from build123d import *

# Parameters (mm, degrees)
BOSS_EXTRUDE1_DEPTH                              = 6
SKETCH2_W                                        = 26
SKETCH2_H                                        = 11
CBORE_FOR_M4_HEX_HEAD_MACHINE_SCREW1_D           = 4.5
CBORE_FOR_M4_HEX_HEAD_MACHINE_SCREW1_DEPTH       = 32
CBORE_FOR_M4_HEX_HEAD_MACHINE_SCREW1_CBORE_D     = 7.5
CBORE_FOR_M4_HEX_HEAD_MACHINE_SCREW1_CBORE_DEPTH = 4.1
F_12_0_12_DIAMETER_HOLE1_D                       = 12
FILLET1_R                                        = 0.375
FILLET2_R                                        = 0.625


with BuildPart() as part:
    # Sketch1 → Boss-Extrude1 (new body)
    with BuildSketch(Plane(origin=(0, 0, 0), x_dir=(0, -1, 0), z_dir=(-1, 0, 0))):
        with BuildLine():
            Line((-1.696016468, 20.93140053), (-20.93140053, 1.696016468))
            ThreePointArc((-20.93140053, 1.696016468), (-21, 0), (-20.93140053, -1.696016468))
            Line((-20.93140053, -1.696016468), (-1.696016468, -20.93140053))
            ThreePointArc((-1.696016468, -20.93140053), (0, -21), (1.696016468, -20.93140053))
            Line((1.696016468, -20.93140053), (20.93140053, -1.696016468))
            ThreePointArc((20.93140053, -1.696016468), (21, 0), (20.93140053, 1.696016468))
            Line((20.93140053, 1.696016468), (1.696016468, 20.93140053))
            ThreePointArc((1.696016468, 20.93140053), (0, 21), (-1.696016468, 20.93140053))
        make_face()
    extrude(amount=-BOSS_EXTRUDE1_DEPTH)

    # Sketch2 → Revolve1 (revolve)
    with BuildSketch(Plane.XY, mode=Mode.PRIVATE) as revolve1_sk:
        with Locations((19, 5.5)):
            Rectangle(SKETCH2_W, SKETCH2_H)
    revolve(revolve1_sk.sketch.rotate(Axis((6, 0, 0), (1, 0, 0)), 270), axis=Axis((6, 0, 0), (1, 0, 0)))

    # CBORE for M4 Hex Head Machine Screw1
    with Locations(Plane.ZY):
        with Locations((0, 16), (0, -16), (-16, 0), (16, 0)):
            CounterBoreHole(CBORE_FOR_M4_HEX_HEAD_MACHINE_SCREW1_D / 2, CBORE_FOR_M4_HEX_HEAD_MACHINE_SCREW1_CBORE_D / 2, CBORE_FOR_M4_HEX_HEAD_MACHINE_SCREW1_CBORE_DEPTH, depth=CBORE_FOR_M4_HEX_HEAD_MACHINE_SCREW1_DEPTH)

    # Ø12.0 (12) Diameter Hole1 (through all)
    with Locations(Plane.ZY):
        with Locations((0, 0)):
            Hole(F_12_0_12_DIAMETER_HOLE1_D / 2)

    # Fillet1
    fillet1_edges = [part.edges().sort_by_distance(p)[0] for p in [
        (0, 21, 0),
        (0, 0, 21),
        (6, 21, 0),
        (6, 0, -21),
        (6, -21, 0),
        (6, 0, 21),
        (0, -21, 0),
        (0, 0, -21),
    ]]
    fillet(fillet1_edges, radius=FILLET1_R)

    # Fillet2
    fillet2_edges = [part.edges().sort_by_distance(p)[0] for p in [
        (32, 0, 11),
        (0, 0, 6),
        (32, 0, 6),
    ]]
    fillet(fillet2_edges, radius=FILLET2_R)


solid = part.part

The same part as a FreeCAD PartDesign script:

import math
import FreeCAD as App
import Part
import Sketcher
from FreeCAD import Vector
Q = App.Units.Quantity


def edges_at(feature, points):
    """Names of the edges that pass closest to the given points."""
    edges = feature.Shape.Edges
    near = lambda p: min(range(len(edges)), key=lambda i: edges[i].distToShape(Part.Vertex(*p))[0])
    return sorted({f"Edge{near(p) + 1}" for p in points})

doc = App.newDocument("Part")
body = doc.addObject("PartDesign::Body", "Body")

# Sketch on YZ plane
sketch1 = body.newObject("Sketcher::SketchObject", "Sketch")
sketch1.AttachmentSupport = (doc.getObject("YZ_Plane"), [""])
sketch1.MapMode = "FlatFace"
sketch1.addGeometry([
    Part.LineSegment(Vector(1.7, 20.9, 0), Vector(20.9, 1.7, 0)),  # 0
    Part.ArcOfCircle(Part.Circle(Vector(0, 0, 0), Vector(0, 0, 1), 21), math.radians(-4.63), math.radians(4.63)),  # 1
    Part.LineSegment(Vector(20.9, -1.7, 0), Vector(1.7, -20.9, 0)),  # 2
    Part.ArcOfCircle(Part.Circle(Vector(0, 0, 0), Vector(0, 0, 1), 21), math.radians(-94.63), math.radians(-85.37)),  # 3
    Part.LineSegment(Vector(-1.7, -20.9, 0), Vector(-20.9, -1.7, 0)),  # 4
    Part.ArcOfCircle(Part.Circle(Vector(0, 0, 0), Vector(0, 0, 1), 21), math.radians(175.37), math.radians(184.63)),  # 5
    Part.LineSegment(Vector(-20.9, 1.7, 0), Vector(-1.7, 20.9, 0)),  # 6
    Part.ArcOfCircle(Part.Circle(Vector(0, 0, 0), Vector(0, 0, 1), 21), math.radians(85.37), math.radians(94.63)),  # 7
], False)
sketch1.addConstraint([
    Sketcher.Constraint("Coincident", 0, 2, 1, 2),
    Sketcher.Constraint("Coincident", 1, 1, 2, 1),
    Sketcher.Constraint("Coincident", 2, 2, 3, 2),
    Sketcher.Constraint("Coincident", 3, 1, 4, 1),
    Sketcher.Constraint("Coincident", 4, 2, 5, 2),
    Sketcher.Constraint("Coincident", 5, 1, 6, 1),
    Sketcher.Constraint("Coincident", 6, 2, 7, 2),
    Sketcher.Constraint("Coincident", 7, 1, 0, 1),
    Sketcher.Constraint("Coincident", 1, 3, -1, 1),
    Sketcher.Constraint("Coincident", 3, 3, -1, 1),
    Sketcher.Constraint("Coincident", 5, 3, -1, 1),
    Sketcher.Constraint("Coincident", 7, 3, -1, 1),
    Sketcher.Constraint("Equal", 1, 3),
    Sketcher.Constraint("Equal", 3, 5),
    Sketcher.Constraint("Equal", 5, 7),
    Sketcher.Constraint("Perpendicular", 0, 2),
    Sketcher.Constraint("Perpendicular", 2, 4),
    Sketcher.Constraint("Perpendicular", 4, 6),
    Sketcher.Constraint("Horizontal", 2, 2, 3, 1),
    Sketcher.Constraint("Horizontal", 1, 1, 4, 2),
    Sketcher.Constraint("Horizontal", 0, 2, 5, 1),
    Sketcher.Constraint("Vertical", 0, 2, 1, 1),
    Sketcher.Constraint("Radius", 1, Q("21 mm")),
    Sketcher.Constraint("DistanceX", -1, 1, 0, 2, Q("20.931401 mm")),
])
pad1 = body.newObject("PartDesign::Pad", "Pad")
pad1.Profile = sketch1
pad1.Length = 6

# Sketch on XY plane
sketch2 = body.newObject("Sketcher::SketchObject", "Sketch001")
sketch2.AttachmentSupport = (doc.getObject("XY_Plane"), [""])
sketch2.MapMode = "FlatFace"
sketch2.addGeometry([
    Part.LineSegment(Vector(6, 11, 0), Vector(6, 0, 0)),
    Part.LineSegment(Vector(6, 0, 0), Vector(32, 0, 0)),
    Part.LineSegment(Vector(32, 0, 0), Vector(32, 11, 0)),
    Part.LineSegment(Vector(32, 11, 0), Vector(6, 11, 0)),
], False)
sketch2.addConstraint([
    Sketcher.Constraint("Coincident", 0, 2, 1, 1),
    Sketcher.Constraint("Coincident", 1, 2, 2, 1),
    Sketcher.Constraint("Coincident", 2, 2, 3, 1),
    Sketcher.Constraint("Coincident", 3, 2, 0, 1),
    Sketcher.Constraint("Vertical", 0),
    Sketcher.Constraint("Horizontal", 1),
    Sketcher.Constraint("Vertical", 2),
    Sketcher.Constraint("Horizontal", 3),
    Sketcher.Constraint("PointOnObject", 0, 2, -1),
    Sketcher.Constraint("DistanceX", 1, 1, 1, 2, Q("26 mm")),
    Sketcher.Constraint("DistanceY", 0, 2, 0, 1, Q("11 mm")),
    Sketcher.Constraint("DistanceX", -1, 1, 0, 2, Q("6 mm")),
])
revolution = body.newObject("PartDesign::Revolution", "Revolution")
revolution.Profile = sketch2
revolution.ReferenceAxis = (sketch2, ["H_Axis"])
revolution.Angle = 360

# Sketch on YZ plane
sketch3 = body.newObject("Sketcher::SketchObject", "Sketch002")
sketch3.AttachmentSupport = (doc.getObject("YZ_Plane"), [""])
sketch3.MapMode = "FlatFace"
sketch3.addGeometry([
    Part.Circle(Vector(16, 0, 0), Vector(0, 0, 1), 2.2),
    Part.Circle(Vector(-16, 0, 0), Vector(0, 0, 1), 2.2),
    Part.Circle(Vector(0, -16, 0), Vector(0, 0, 1), 2.2),
    Part.Circle(Vector(0, 16, 0), Vector(0, 0, 1), 2.2),
], False)
sketch3.addConstraint([
    Sketcher.Constraint("Equal", 0, 1),
    Sketcher.Constraint("Equal", 1, 2),
    Sketcher.Constraint("Equal", 2, 3),
    Sketcher.Constraint("Symmetric", 0, 3, 1, 3, -1, 1),
    Sketcher.Constraint("Symmetric", 2, 3, 3, 3, -1, 1),
    Sketcher.Constraint("PointOnObject", 0, 3, -1),
    Sketcher.Constraint("PointOnObject", 2, 3, -2),
    Sketcher.Constraint("Diameter", 0, Q("4.5 mm")),
    Sketcher.Constraint("DistanceX", -1, 1, 0, 3, Q("16 mm")),
    Sketcher.Constraint("DistanceY", 2, 3, -1, 1, Q("16 mm")),
])
doc.recompute()
hole = body.newObject("PartDesign::Hole", "Hole")
hole.Profile = sketch3
hole.ThreadType = "None"
hole.Diameter = 4.5
hole.DepthType = "Dimension"
hole.Depth = 32
hole.DrillPoint = "Flat"
hole.HoleCutType = "Counterbore"
hole.HoleCutDiameter = 7.5
hole.HoleCutDepth = 4.1
hole.Reversed = True

# Sketch on YZ plane
sketch4 = body.newObject("Sketcher::SketchObject", "Sketch003")
sketch4.AttachmentSupport = (doc.getObject("YZ_Plane"), [""])
sketch4.MapMode = "FlatFace"
sketch4.addGeometry(Part.Circle(Vector(0, 0, 0), Vector(0, 0, 1), 6), False)
sketch4.addConstraint([
    Sketcher.Constraint("Coincident", 0, 3, -1, 1),
    Sketcher.Constraint("Diameter", 0, Q("12 mm")),
])
doc.recompute()
hole2 = body.newObject("PartDesign::Hole", "Hole001")
hole2.Profile = sketch4
hole2.ThreadType = "None"
hole2.Diameter = 12
hole2.DepthType = "ThroughAll"
hole2.Reversed = True
doc.recompute()

fillet = body.newObject("PartDesign::Fillet", "Fillet")
fillet.Base = (hole2, edges_at(hole2, [
    (0, 21, 0),
    (0, 0, 21),
    (6, 21, 0),
    (6, 0, -21),
    (6, -21, 0),
    (6, 0, 21),
    (0, -21, 0),
    (0, 0, -21),
]))
fillet.Radius = 0.375
doc.recompute()

fillet2 = body.newObject("PartDesign::Fillet", "Fillet001")
fillet2.Base = (fillet, edges_at(fillet, [(32, 0, 11), (0, 0, 6), (32, 0, 6)]))
fillet2.Radius = 0.625

doc.recompute()
